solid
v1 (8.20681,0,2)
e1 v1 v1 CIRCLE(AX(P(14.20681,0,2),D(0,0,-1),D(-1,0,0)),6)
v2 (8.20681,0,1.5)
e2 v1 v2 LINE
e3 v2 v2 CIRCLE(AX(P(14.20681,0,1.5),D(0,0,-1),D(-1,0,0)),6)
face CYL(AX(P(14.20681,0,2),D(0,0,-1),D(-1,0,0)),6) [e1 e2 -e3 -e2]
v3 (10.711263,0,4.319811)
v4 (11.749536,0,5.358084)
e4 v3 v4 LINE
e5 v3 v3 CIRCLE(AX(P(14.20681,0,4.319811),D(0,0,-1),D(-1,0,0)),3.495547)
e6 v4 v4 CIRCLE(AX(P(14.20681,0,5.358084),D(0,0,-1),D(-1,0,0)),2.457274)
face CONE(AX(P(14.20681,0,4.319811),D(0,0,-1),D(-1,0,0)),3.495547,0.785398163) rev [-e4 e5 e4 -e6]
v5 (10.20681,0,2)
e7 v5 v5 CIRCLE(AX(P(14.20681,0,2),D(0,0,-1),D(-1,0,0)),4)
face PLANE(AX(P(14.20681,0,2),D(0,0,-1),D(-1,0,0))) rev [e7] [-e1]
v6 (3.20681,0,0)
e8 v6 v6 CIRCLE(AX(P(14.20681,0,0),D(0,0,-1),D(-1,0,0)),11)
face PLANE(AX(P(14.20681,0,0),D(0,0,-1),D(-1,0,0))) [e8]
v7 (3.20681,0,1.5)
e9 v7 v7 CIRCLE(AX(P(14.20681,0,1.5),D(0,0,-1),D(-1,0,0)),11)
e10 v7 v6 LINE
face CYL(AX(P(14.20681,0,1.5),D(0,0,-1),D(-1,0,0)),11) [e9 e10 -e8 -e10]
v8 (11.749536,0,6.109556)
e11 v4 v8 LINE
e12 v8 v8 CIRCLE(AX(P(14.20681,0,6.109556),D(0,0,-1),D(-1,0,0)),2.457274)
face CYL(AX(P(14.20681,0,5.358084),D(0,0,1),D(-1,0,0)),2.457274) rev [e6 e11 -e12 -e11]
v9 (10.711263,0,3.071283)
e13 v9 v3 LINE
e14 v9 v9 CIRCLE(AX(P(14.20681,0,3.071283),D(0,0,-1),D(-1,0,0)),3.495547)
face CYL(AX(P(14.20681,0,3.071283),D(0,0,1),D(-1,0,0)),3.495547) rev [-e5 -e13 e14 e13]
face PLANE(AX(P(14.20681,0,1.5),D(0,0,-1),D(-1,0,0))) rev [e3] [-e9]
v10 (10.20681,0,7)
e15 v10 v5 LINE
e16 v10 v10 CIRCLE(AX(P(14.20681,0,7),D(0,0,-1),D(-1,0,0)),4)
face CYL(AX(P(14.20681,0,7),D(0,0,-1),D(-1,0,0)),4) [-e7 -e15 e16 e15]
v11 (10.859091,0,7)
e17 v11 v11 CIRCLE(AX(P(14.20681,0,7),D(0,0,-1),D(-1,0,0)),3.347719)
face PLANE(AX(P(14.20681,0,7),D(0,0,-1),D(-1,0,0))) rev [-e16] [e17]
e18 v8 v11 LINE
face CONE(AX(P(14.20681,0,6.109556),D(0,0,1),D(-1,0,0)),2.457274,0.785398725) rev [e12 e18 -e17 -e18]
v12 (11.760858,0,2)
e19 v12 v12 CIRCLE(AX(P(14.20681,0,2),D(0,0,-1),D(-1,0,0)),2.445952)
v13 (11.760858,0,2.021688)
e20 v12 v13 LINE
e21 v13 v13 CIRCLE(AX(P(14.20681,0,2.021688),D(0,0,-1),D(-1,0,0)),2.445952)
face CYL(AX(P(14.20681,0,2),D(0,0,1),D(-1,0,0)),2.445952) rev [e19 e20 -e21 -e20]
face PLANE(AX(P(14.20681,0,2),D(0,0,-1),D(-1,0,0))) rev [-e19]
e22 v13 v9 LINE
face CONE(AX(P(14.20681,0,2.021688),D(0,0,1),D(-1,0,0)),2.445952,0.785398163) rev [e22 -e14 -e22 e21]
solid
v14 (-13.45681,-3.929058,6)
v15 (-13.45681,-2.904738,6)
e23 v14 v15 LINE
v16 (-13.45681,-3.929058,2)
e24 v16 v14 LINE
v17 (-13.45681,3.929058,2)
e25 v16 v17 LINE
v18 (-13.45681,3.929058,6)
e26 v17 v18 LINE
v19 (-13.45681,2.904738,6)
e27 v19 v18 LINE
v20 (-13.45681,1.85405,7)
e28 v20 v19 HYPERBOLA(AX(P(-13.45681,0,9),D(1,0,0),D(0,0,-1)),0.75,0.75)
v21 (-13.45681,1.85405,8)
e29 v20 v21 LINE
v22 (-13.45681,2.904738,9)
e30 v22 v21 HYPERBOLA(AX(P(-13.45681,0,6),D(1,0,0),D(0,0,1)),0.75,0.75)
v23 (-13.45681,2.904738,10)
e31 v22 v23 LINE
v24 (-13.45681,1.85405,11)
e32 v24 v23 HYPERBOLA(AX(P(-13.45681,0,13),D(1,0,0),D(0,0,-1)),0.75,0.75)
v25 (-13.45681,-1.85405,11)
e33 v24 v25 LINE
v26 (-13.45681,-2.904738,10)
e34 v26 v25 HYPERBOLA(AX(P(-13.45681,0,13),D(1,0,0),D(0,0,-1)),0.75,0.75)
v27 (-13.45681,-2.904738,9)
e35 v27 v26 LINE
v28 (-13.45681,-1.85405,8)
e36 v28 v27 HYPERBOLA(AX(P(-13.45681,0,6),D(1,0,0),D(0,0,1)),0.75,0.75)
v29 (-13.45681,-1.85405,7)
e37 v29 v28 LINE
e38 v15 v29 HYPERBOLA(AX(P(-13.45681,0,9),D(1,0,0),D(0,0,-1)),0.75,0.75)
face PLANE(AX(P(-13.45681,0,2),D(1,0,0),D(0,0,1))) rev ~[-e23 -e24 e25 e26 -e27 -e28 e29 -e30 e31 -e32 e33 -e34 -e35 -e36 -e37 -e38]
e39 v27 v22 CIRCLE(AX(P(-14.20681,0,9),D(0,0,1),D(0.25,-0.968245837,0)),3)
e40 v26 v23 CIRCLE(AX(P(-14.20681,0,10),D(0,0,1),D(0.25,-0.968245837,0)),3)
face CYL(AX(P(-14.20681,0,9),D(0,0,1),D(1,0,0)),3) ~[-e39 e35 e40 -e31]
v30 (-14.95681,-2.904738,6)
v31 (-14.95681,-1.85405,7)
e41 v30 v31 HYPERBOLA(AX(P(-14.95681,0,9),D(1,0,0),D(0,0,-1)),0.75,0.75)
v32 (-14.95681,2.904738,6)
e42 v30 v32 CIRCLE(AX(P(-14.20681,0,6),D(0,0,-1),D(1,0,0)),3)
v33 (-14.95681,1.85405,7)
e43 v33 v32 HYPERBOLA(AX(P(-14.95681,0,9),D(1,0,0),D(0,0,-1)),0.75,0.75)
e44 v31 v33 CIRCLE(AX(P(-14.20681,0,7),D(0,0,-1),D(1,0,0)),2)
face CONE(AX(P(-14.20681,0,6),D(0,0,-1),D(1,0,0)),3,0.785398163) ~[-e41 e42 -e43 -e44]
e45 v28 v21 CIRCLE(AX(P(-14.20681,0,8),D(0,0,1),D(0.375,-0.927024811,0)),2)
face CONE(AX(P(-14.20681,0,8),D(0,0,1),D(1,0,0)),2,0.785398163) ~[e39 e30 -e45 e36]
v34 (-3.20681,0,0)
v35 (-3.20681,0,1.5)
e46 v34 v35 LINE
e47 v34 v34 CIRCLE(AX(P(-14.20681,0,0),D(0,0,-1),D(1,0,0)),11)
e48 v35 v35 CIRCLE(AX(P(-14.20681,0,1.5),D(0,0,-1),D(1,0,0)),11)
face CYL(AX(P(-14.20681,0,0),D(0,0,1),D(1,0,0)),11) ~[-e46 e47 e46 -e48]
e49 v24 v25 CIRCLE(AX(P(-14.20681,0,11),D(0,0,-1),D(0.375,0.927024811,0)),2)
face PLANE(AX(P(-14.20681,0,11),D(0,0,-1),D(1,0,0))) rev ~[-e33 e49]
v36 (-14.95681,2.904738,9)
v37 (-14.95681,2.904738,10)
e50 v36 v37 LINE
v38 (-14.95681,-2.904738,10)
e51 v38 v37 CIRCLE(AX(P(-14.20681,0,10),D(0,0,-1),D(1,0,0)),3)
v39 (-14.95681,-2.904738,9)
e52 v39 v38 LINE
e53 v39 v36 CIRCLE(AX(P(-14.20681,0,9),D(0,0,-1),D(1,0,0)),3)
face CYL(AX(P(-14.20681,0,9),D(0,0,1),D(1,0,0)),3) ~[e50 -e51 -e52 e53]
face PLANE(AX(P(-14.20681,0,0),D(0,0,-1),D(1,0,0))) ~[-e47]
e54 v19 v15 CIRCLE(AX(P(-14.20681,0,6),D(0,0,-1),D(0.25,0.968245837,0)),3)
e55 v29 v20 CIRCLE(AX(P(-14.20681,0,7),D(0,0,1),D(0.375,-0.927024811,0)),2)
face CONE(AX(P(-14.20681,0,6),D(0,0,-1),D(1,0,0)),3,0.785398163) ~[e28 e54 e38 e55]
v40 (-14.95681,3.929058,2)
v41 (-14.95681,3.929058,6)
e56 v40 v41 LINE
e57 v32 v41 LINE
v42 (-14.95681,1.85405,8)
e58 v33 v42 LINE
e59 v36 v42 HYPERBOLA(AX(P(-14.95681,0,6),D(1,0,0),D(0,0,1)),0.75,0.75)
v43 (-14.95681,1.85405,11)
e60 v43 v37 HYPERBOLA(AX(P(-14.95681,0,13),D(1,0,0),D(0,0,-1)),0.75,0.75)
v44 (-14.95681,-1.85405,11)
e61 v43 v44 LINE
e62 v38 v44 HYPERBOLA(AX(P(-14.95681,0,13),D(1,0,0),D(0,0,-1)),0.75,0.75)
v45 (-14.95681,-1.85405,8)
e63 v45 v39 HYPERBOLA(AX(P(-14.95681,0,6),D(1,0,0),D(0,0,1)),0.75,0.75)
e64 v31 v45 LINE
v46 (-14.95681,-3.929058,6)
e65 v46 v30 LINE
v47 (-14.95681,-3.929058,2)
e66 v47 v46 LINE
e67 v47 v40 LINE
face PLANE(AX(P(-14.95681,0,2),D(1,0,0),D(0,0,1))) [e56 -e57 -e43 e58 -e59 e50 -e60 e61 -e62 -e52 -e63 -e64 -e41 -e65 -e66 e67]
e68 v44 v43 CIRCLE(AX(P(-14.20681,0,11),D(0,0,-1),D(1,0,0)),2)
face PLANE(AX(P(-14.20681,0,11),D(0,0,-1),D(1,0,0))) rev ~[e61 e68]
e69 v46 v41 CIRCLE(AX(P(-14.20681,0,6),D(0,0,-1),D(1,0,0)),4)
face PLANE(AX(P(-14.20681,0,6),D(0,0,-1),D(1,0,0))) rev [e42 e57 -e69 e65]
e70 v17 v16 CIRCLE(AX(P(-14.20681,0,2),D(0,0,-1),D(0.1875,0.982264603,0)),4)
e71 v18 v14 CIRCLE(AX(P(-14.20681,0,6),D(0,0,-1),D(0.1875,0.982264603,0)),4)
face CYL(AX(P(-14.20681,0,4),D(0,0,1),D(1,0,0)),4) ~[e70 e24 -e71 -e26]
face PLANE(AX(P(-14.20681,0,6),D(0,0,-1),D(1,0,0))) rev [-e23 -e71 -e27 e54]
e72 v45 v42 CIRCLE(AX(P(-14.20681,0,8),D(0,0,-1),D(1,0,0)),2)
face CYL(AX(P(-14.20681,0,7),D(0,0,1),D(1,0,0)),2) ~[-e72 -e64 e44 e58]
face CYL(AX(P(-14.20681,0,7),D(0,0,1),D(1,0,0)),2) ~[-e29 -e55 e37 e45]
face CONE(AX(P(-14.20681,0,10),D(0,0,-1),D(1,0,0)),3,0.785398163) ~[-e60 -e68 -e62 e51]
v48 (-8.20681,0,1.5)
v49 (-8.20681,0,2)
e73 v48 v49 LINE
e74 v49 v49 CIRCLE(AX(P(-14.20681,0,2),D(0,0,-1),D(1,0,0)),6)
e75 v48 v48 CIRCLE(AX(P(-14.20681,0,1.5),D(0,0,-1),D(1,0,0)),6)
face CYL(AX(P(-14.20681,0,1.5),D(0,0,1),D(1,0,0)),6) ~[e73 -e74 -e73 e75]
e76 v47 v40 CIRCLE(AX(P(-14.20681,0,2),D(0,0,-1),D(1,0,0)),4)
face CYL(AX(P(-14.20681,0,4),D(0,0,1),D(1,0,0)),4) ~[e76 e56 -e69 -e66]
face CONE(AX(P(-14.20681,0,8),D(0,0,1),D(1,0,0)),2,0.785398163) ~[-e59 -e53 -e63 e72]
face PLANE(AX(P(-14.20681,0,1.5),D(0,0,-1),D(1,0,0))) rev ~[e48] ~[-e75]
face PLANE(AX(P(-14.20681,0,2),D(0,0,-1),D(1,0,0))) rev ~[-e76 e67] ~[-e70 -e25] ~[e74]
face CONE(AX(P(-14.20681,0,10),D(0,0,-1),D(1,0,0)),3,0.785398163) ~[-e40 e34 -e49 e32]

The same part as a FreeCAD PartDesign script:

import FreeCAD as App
import Part
import Sketcher
from FreeCAD import Vector
Q = App.Units.Quantity


def add_polygon(sketch, points):
    """Adds a closed chain of lines whose ends are joined by coincident constraints."""
    first, n = sketch.GeometryCount, len(points)
    for a, b in zip(points, points[1:] + points[:1]):
        sketch.addGeometry(Part.LineSegment(App.Vector(*a, 0), App.Vector(*b, 0)), False)
    for i in range(n):
        sketch.addConstraint(Sketcher.Constraint("Coincident", first + i, 2, first + (i + 1) % n, 1))

doc = App.newDocument("Part")
params = doc.addObject("Spreadsheet::Sheet", "Params")
for row, (alias, value) in enumerate([
    ("sketch1_width", "11 mm"),
    ("sketch1_width2", "5 mm"),
    ("sketch1_width3", "2 mm"),
    ("sketch1_width4", "1 mm"),
    ("sketch1_height", "4 mm"),
    ("revolution_angle", "360 deg"),
    ("sketch2_height", "9 mm"),
    ("sketch2_width", "1.5 mm"),
    ("pocket1_length", "25 mm"),
    ("sketch3_width", "2 mm"),
    ("sketch3_width2", "5 mm"),
    ("sketch3_width3", "11 mm"),
    ("sketch3_height", "0.5 mm"),
    ("revolution2_angle", "360 deg"),
], start=1):
    params.set(f"A{row}", alias)
    params.set(f"B{row}", "=" + value)
    params.setAlias(f"B{row}", alias)

body = doc.addObject("PartDesign::Body", "Body")

# Sketch on XZ plane
sketch1 = body.newObject("Sketcher::SketchObject", "Sketch")
sketch1.AttachmentSupport = (doc.getObject("XZ_Plane"), [""])
sketch1.MapMode = "FlatFace"
add_polygon(sketch1, [(-14.20681, 0), (-3.20681, 0), (-3.20681, 1.5), (-8.20681, 1.5), (-8.20681, 2), (-10.20681, 2), (-10.20681, 6), (-11.20681, 6), (-12.20681, 7), (-12.20681, 8), (-11.20681, 9), (-11.20681, 10), (-12.20681, 11), (-14.20681, 11)])  # lines 0-13
sketch1.addGeometry(Part.LineSegment(Vector(-14.20681, 11, 0), Vector(-14.20681, 0, 0)), True)  # axis
sketch1.addConstraint(Sketcher.Constraint("Horizontal", 0))
sketch1.addConstraint(Sketcher.Constraint("Vertical", 1))
sketch1.addConstraint(Sketcher.Constraint("Horizontal", 2))
sketch1.addConstraint(Sketcher.Constraint("Vertical", 3))
sketch1.addConstraint(Sketcher.Constraint("Horizontal", 4))
sketch1.addConstraint(Sketcher.Constraint("Vertical", 5))
sketch1.addConstraint(Sketcher.Constraint("Horizontal", 6))
sketch1.addConstraint(Sketcher.Constraint("Vertical", 8))
sketch1.addConstraint(Sketcher.Constraint("Vertical", 10))
sketch1.addConstraint(Sketcher.Constraint("Horizontal", 12))
sketch1.addConstraint(Sketcher.Constraint("Vertical", 13))
sketch1.addConstraint(Sketcher.Constraint("Vertical", 14))
sketch1.addConstraint(Sketcher.Constraint("Coincident", 14, 1, 12, 2))
sketch1.addConstraint(Sketcher.Constraint("PointOnObject", 0, 2, -1))
sketch1.addConstraint(Sketcher.Constraint("PointOnObject", 14, 2, -1))
sketch1.addConstraint(Sketcher.Constraint("Perpendicular", 7, 9))
sketch1.addConstraint(Sketcher.Constraint("Perpendicular", 9, 11))
sketch1.addConstraint(Sketcher.Constraint("Vertical", 6, 2, 9, 2))
sketch1.addConstraint(Sketcher.Constraint("Vertical", 8, 2, 11, 2))
sketch1.addConstraint(Sketcher.Constraint("Equal", 4, 12))
sketch1.addConstraint(Sketcher.Constraint("Equal", 6, 8))
sketch1.addConstraint(Sketcher.Constraint("Equal", 8, 10))
sketch1.addConstraint(Sketcher.Constraint("Equal", 0, 13))
sketch1.addConstraint(Sketcher.Constraint("Equal", 7, 9))
sketch1.addConstraint(Sketcher.Constraint("DistanceX", 0, 1, 0, 2, Q("11 mm")))
sketch1.addConstraint(Sketcher.Constraint("DistanceX", 2, 2, 2, 1, Q("5 mm")))
sketch1.addConstraint(Sketcher.Constraint("DistanceX", 4, 2, 4, 1, Q("2 mm")))
sketch1.addConstraint(Sketcher.Constraint("DistanceX", 6, 2, 6, 1, Q("1 mm")))
sketch1.addConstraint(Sketcher.Constraint("DistanceY", 5, 1, 5, 2, Q("4 mm")))
sketch1.addConstraint(Sketcher.Constraint("DistanceY", 1, 1, 1, 2, Q("1.5 mm")))
sketch1.addConstraint(Sketcher.Constraint("DistanceX", 0, 2, -1, 1, Q("3.20681 mm")))
sketch1.setExpression("Constraints[38]", "Params.sketch1_width")
sketch1.setExpression("Constraints[39]", "Params.sketch1_width2")
sketch1.setExpression("Constraints[40]", "Params.sketch1_width3")
sketch1.setExpression("Constraints[41]", "Params.sketch1_width4")
sketch1.setExpression("Constraints[42]", "Params.sketch1_height")
revolution = body.newObject("PartDesign::Revolution", "Revolution")
revolution.Profile = sketch1
revolution.ReferenceAxis = (sketch1, ["Axis0"])
revolution.setExpression("Angle", "Params.revolution_angle")

# Sketch on XZ plane
sketch2 = body.newObject("Sketcher::SketchObject", "Sketch001")
sketch2.AttachmentSupport = (doc.getObject("XZ_Plane"), [""])
sketch2.MapMode = "FlatFace"
add_polygon(sketch2, [(-13.45681, 2), (-13.45681, 11), (-14.95681, 11), (-14.95681, 2)])  # lines 0-3
sketch2.addConstraint(Sketcher.Constraint("Vertical", 0))
sketch2.addConstraint(Sketcher.Constraint("Horizontal", 1))
sketch2.addConstraint(Sketcher.Constraint("Vertical", 2))
sketch2.addConstraint(Sketcher.Constraint("Horizontal", 3))
sketch2.addConstraint(Sketcher.Constraint("DistanceY", 0, 1, 0, 2, Q("9 mm")))
sketch2.addConstraint(Sketcher.Constraint("DistanceX", 1, 2, 1, 1, Q("1.5 mm")))
sketch2.addConstraint(Sketcher.Constraint("DistanceY", -1, 1, 0, 2, Q("11 mm")))
sketch2.addConstraint(Sketcher.Constraint("DistanceX", 0, 2, -1, 1, Q("13.45681 mm")))
sketch2.setExpression("Constraints[8]", "Params.sketch2_height")
sketch2.setExpression("Constraints[9]", "Params.sketch2_width")
pocket1 = body.newObject("PartDesign::Pocket", "Pocket")
pocket1.Profile = sketch2
pocket1.setExpression("Length", "Params.pocket1_length")
pocket1.Midplane = True
body2 = doc.addObject("PartDesign::Body", "Body001")

# Sketch on XZ plane
sketch3 = body2.newObject("Sketcher::SketchObject", "Sketch002")
sketch3.AttachmentSupport = (doc.getObject("XZ_Plane001"), [""])
sketch3.MapMode = "FlatFace"
add_polygon(sketch3, [(10.20681, 7), (10.20681, 2), (8.20681, 2), (8.20681, 1.5), (3.20681, 1.5), (3.20681, 0), (14.20681, 0), (14.20681, 2), (11.760858, 2), (11.760858, 2.021688), (10.711263, 3.071283), (10.711263, 4.319811), (11.749536, 5.358084), (11.749536, 6.109556), (10.859091, 7)])  # lines 0-14
sketch3.addGeometry(Part.LineSegment(Vector(14.20681, 7, 0), Vector(14.20681, 0, 0)), True)  # axis
sketch3.addConstraint(Sketcher.Constraint("Vertical", 0))
sketch3.addConstraint(Sketcher.Constraint("Horizontal", 1))
sketch3.addConstraint(Sketcher.Constraint("Vertical", 2))
sketch3.addConstraint(Sketcher.Constraint("Horizontal", 3))
sketch3.addConstraint(Sketcher.Constraint("Vertical", 4))
sketch3.addConstraint(Sketcher.Constraint("Horizontal", 5))
sketch3.addConstraint(Sketcher.Constraint("Vertical", 6))
sketch3.addConstraint(Sketcher.Constraint("Horizontal", 7))
sketch3.addConstraint(Sketcher.Constraint("Vertical", 8))
sketch3.addConstraint(Sketcher.Constraint("Vertical", 10))
sketch3.addConstraint(Sketcher.Constraint("Vertical", 12))
sketch3.addConstraint(Sketcher.Constraint("Horizontal", 14))
sketch3.addConstraint(Sketcher.Constraint("Vertical", 15))
sketch3.addConstraint(Sketcher.Constraint("Coincident", 15, 2, 5, 2))
sketch3.addConstraint(Sketcher.Constraint("PointOnObject", 4, 2, -1))
sketch3.addConstraint(Sketcher.Constraint("Perpendicular", 9, 11))
sketch3.addConstraint(Sketcher.Constraint("Perpendicular", 11, 13))
sketch3.addConstraint(Sketcher.Constraint("Horizontal", 1, 2, 6, 2))
sketch3.addConstraint(Sketcher.Constraint("Horizontal", 14, 2, 15, 1))
sketch3.addConstraint(Sketcher.Constraint("Equal", 3, 0))
sketch3.addConstraint(Sketcher.Constraint("Equal", 1, 6))
sketch3.addConstraint(Sketcher.Constraint("DistanceX", 1, 2, 1, 1, Q("2 mm")))
sketch3.addConstraint(Sketcher.Constraint("DistanceX", 3, 2, 3, 1, Q("5 mm")))
sketch3.addConstraint(Sketcher.Constraint("DistanceX", 5, 1, 5, 2, Q("11 mm")))
sketch3.addConstraint(Sketcher.Constraint("Angle", 9, Q("135 deg")))
sketch3.addConstraint(Sketcher.Constraint("DistanceY", 2, 2, 2, 1, Q("0.5 mm")))
sketch3.addConstraint(Sketcher.Constraint("DistanceX", 14, 2, 14, 1, Q("0.652281 mm")))
sketch3.addConstraint(Sketcher.Constraint("DistanceY", 8, 1, 8, 2, Q("0.021688 mm")))
sketch3.addConstraint(Sketcher.Constraint("DistanceY", 9, 2, 11, 2, Q("2.286801 mm")))
sketch3.addConstraint(Sketcher.Constraint("Distance", 9, Q("1.484351 mm")))
sketch3.addConstraint(Sketcher.Constraint("Distance", 11, Q("1.46834 mm")))
sketch3.addConstraint(Sketcher.Constraint("Distance", 13, Q("1.259279 mm")))
sketch3.addConstraint(Sketcher.Constraint("DistanceX", -1, 1, 0, 2, Q("10.20681 mm")))
sketch3.setExpression("Constraints[36]", "Params.sketch3_width")
sketch3.setExpression("Constraints[37]", "Params.sketch3_width2")
sketch3.setExpression("Constraints[38]", "Params.sketch3_width3")
sketch3.setExpression("Constraints[40]", "Params.sketch3_height")
revolution2 = body2.newObject("PartDesign::Revolution", "Revolution001")
revolution2.Profile = sketch3
revolution2.ReferenceAxis = (sketch3, ["Axis0"])
revolution2.setExpression("Angle", "Params.revolution2_angle")

doc.recompute()
